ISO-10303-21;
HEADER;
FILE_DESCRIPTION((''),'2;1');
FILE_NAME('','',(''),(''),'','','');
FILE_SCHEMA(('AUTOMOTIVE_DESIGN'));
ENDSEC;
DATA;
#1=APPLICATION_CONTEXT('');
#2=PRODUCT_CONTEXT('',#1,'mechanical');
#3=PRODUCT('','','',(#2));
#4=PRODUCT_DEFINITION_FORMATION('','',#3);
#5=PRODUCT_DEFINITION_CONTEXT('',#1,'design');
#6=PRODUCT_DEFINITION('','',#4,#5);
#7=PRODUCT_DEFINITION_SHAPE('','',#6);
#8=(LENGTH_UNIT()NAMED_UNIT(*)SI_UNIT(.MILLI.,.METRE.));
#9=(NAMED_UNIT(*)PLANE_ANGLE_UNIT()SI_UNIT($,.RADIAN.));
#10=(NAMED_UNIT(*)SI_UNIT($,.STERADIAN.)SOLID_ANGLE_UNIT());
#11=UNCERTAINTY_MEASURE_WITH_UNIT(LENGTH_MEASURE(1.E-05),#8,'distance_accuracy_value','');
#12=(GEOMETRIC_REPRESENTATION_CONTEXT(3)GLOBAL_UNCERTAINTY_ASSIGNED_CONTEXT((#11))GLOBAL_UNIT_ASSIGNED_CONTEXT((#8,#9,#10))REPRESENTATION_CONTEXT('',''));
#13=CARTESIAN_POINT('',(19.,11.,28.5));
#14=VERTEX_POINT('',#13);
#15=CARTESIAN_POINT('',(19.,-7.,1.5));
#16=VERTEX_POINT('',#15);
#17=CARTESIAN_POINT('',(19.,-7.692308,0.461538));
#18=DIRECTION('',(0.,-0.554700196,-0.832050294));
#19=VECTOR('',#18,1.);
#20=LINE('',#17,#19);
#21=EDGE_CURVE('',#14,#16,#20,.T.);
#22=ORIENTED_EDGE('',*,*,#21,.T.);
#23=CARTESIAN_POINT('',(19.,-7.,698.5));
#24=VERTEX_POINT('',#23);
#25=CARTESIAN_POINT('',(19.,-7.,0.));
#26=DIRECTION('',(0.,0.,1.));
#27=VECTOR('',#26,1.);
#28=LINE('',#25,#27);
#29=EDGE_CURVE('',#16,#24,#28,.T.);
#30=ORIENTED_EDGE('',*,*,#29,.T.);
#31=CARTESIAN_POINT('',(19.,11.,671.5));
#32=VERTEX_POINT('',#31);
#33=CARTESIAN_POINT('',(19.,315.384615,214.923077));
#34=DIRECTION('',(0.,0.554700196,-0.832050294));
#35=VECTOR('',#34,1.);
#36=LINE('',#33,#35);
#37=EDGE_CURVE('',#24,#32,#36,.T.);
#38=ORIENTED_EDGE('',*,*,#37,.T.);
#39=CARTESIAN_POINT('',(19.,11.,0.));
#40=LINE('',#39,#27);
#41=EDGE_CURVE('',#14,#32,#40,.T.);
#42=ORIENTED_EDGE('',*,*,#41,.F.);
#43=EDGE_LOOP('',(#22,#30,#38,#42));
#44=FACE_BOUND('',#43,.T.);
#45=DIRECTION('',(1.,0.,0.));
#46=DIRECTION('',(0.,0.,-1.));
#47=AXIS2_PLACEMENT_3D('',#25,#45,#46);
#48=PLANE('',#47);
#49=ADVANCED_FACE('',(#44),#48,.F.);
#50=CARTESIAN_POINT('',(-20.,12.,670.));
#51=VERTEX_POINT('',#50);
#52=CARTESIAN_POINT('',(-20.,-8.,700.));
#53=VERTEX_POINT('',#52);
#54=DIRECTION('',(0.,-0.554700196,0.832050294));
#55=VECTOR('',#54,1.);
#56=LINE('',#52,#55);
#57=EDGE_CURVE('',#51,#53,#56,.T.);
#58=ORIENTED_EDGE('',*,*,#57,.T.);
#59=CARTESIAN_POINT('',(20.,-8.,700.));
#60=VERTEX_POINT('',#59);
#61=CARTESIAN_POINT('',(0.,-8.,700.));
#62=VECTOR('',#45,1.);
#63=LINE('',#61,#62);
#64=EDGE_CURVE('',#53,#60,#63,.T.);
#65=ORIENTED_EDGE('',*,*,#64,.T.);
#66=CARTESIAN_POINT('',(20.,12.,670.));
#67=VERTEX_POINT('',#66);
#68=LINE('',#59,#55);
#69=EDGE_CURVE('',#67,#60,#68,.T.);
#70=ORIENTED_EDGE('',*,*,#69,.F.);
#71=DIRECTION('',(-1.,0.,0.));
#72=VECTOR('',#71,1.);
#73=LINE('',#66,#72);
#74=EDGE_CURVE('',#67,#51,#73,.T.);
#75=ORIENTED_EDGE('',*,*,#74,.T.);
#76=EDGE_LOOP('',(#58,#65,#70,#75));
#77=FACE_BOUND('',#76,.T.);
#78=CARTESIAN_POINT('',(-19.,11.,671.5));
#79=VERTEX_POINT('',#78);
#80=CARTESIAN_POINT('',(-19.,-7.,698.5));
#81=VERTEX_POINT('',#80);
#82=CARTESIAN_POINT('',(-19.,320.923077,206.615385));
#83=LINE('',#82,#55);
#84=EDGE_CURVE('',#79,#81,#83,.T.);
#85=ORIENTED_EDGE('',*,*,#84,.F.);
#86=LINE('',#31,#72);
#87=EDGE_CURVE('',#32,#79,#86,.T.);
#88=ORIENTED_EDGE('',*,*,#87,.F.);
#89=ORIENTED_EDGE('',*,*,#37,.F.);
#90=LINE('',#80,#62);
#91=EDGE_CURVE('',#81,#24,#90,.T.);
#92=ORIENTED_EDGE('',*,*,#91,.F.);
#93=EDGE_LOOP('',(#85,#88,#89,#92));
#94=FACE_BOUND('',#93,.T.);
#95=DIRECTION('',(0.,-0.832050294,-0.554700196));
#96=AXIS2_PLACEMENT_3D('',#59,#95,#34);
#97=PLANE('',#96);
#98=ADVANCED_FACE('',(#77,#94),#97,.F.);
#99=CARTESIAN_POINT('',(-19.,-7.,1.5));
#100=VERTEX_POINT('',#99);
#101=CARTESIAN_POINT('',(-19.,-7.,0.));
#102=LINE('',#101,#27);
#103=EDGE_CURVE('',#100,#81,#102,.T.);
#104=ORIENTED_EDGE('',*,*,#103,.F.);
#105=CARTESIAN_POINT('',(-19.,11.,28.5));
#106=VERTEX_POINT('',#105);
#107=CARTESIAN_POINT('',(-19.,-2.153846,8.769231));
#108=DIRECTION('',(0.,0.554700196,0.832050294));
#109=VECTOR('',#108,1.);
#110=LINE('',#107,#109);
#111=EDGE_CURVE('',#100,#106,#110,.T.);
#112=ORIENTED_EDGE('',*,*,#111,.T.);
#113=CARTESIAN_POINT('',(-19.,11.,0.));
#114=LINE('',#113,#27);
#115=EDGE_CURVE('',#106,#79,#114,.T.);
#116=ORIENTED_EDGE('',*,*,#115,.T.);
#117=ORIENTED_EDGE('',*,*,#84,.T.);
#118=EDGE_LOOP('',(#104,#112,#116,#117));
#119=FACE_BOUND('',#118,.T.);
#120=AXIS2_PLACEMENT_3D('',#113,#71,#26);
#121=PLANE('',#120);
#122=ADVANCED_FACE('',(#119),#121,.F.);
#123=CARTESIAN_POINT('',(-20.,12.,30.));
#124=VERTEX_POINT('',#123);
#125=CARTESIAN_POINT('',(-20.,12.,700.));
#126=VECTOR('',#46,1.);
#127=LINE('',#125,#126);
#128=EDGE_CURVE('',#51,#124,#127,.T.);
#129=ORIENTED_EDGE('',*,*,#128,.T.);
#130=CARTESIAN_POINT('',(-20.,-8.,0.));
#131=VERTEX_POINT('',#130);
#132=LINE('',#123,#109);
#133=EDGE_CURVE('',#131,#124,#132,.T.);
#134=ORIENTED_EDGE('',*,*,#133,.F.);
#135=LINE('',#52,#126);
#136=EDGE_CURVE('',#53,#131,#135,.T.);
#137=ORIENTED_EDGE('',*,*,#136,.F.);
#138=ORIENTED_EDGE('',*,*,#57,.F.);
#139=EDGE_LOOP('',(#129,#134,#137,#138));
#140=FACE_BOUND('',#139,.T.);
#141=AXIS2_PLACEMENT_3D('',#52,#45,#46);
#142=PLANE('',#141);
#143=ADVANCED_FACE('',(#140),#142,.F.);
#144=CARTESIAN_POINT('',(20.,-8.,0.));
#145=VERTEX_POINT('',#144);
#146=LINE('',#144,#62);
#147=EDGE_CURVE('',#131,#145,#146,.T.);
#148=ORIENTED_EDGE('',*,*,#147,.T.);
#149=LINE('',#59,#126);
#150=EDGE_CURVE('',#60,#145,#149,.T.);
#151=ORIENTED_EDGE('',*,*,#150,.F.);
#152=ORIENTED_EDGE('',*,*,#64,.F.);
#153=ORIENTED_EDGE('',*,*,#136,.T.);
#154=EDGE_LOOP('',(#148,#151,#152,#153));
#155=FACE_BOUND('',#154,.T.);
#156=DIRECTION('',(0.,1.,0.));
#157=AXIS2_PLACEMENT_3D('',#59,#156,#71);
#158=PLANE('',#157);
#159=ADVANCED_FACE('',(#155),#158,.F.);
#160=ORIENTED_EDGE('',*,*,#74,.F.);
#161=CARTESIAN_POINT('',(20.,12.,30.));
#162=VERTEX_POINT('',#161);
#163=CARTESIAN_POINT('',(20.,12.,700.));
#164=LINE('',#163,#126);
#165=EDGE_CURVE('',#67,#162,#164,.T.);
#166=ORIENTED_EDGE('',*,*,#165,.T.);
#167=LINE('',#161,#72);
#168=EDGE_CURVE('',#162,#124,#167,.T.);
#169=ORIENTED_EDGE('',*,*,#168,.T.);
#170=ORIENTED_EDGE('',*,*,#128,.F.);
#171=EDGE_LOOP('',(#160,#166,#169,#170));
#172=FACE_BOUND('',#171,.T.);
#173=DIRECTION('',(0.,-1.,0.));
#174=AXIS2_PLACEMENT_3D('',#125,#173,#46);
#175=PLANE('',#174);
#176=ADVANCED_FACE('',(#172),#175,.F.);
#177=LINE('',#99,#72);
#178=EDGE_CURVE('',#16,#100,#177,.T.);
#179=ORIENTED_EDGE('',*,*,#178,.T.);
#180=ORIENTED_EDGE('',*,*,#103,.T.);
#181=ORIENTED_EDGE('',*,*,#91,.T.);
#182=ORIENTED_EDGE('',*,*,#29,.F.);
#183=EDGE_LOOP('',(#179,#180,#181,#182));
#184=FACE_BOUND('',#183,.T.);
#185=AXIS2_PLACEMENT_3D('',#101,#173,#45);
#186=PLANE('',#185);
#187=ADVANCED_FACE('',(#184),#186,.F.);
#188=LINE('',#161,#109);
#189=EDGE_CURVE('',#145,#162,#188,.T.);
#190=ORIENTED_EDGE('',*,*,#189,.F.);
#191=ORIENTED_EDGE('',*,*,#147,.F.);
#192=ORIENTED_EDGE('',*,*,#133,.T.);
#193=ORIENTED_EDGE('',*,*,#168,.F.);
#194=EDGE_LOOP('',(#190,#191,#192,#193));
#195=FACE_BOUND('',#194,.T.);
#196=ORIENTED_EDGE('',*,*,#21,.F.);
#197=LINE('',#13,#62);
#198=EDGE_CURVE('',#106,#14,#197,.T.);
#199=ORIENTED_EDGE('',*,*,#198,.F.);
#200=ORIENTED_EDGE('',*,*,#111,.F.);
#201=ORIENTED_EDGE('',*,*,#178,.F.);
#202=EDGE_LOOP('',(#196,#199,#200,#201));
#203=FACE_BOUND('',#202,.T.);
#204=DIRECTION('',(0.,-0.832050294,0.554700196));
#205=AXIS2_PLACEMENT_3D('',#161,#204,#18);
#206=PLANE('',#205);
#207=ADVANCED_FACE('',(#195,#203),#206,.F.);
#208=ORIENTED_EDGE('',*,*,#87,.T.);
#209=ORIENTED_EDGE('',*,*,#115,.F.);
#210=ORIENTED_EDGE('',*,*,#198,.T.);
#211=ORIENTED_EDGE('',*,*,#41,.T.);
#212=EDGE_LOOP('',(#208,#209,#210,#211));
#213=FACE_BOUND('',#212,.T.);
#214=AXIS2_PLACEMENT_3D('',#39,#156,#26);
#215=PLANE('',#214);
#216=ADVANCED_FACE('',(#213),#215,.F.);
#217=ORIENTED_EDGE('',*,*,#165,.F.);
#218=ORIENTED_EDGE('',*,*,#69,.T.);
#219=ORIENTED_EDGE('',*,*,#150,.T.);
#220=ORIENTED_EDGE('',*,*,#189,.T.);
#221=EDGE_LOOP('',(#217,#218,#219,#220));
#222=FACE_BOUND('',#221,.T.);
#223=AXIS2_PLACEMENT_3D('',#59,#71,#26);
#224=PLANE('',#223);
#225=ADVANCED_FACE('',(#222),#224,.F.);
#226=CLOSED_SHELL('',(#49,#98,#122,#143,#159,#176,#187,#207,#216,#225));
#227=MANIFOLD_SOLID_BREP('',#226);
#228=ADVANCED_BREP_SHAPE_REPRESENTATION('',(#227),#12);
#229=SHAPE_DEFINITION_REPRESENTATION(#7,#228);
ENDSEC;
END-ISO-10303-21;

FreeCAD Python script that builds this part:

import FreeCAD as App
import Part
import Sketcher


def add_polygon(sketch, points):
    """Adds a closed chain of lines whose ends are joined by coincident constraints."""
    first, n = sketch.GeometryCount, len(points)
    for a, b in zip(points, points[1:] + points[:1]):
        sketch.addGeometry(Part.LineSegment(App.Vector(*a, 0), App.Vector(*b, 0)), False)
    for i in range(n):
        sketch.addConstraint(Sketcher.Constraint("Coincident", first + i, 2, first + (i + 1) % n, 1))

doc = App.newDocument("Part")
body = doc.addObject("PartDesign::Body", "Body")

# Sketch on XY plane
sketch1 = body.newObject("Sketcher::SketchObject", "Sketch")
sketch1.AttachmentSupport = (doc.getObject("XY_Plane"), [""])
sketch1.MapMode = "FlatFace"
add_polygon(sketch1, [(-20, -8), (20, -8), (20, 12), (-20, 12)])  # lines 0-3
sketch1.addConstraint(Sketcher.Constraint("Horizontal", 0))
sketch1.addConstraint(Sketcher.Constraint("Vertical", 1))
sketch1.addConstraint(Sketcher.Constraint("Horizontal", 2))
sketch1.addConstraint(Sketcher.Constraint("Vertical", 3))
sketch1.addConstraint(Sketcher.Constraint("DistanceX", 0, 1, 0, 2, 40.0))
sketch1.addConstraint(Sketcher.Constraint("DistanceY", 1, 1, 1, 2, 20.0))
sketch1.addConstraint(Sketcher.Constraint("DistanceX", -1, 1, 0, 2, 20.0))
sketch1.addConstraint(Sketcher.Constraint("DistanceY", 0, 2, -1, 1, 8.0))
pad1 = body.newObject("PartDesign::Pad", "Pad")
pad1.Profile = sketch1
pad1.Length = 700

# Sketch on XY plane
sketch2 = body.newObject("Sketcher::SketchObject", "Sketch001")
sketch2.AttachmentSupport = (doc.getObject("XY_Plane"), [""])
sketch2.MapMode = "FlatFace"
sketch2.AttachmentOffset = App.Placement(App.Vector(0, 0, 700), App.Rotation())
add_polygon(sketch2, [(-19, 11), (-19, -7), (19, -7), (19, 11)])  # lines 0-3
sketch2.addConstraint(Sketcher.Constraint("Vertical", 0))
sketch2.addConstraint(Sketcher.Constraint("Horizontal", 1))
sketch2.addConstraint(Sketcher.Constraint("Vertical", 2))
sketch2.addConstraint(Sketcher.Constraint("Horizontal", 3))
sketch2.addConstraint(Sketcher.Constraint("DistanceX", 1, 1, 1, 2, 38.0))
sketch2.addConstraint(Sketcher.Constraint("DistanceY", 0, 2, 0, 1, 18.0))
sketch2.addConstraint(Sketcher.Constraint("DistanceX", 0, 2, -1, 1, 19.0))
sketch2.addConstraint(Sketcher.Constraint("DistanceY", 0, 2, -1, 1, 7.0))
pocket1 = body.newObject("PartDesign::Pocket", "Pocket")
pocket1.Profile = sketch2
pocket1.Type = "ThroughAll"

# Sketch on YZ plane
sketch3 = body.newObject("Sketcher::SketchObject", "Sketch002")
sketch3.AttachmentSupport = (doc.getObject("YZ_Plane"), [""])
sketch3.MapMode = "FlatFace"
sketch3.AttachmentOffset = App.Placement(App.Vector(0, 0, -20), App.Rotation())
add_polygon(sketch3, [(12, 30), (12, 0), (-8, 0)])  # lines 0-2
add_polygon(sketch3, [(12, 700), (12, 670), (-8, 700)])  # lines 3-5
sketch3.addConstraint(Sketcher.Constraint("Vertical", 0))
sketch3.addConstraint(Sketcher.Constraint("Horizontal", 1))
sketch3.addConstraint(Sketcher.Constraint("Vertical", 3))
sketch3.addConstraint(Sketcher.Constraint("Horizontal", 5))
sketch3.addConstraint(Sketcher.Constraint("PointOnObject", 0, 2, -1))
sketch3.addConstraint(Sketcher.Constraint("Vertical", 2, 2, 3, 2))
sketch3.addConstraint(Sketcher.Constraint("Vertical", 1, 2, 4, 2))
sketch3.addConstraint(Sketcher.Constraint("Equal", 0, 3))
sketch3.addConstraint(Sketcher.Constraint("DistanceX", 1, 2, 1, 1, 20.0))
sketch3.addConstraint(Sketcher.Constraint("DistanceY", 0, 2, 0, 1, 30.0))
sketch3.addConstraint(Sketcher.Constraint("DistanceX", -1, 1, 0, 2, 12.0))
sketch3.addConstraint(Sketcher.Constraint("DistanceY", -1, 1, 3, 2, 670.0))
pocket2 = body.newObject("PartDesign::Pocket", "Pocket001")
pocket2.Profile = sketch3
pocket2.Type = "ThroughAll"
pocket2.Reversed = True

doc.recompute()
